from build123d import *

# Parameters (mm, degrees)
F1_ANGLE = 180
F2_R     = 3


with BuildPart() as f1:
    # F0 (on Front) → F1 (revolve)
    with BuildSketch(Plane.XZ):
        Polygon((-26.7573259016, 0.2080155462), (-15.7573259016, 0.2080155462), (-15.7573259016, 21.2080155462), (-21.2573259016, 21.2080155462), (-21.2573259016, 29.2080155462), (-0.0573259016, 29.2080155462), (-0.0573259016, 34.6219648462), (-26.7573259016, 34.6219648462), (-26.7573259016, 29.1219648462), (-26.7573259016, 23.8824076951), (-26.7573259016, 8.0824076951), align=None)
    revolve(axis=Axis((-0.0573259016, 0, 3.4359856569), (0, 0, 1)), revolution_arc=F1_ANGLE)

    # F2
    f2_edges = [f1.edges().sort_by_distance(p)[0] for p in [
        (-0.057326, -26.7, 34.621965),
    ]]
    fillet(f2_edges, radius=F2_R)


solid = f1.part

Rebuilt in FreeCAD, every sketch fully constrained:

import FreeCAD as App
import Part
import Sketcher
from FreeCAD import Vector


def edges_at(feature, points):
    """Names of the edges that pass closest to the given points."""
    edges = feature.Shape.Edges
    near = lambda p: min(range(len(edges)), key=lambda i: edges[i].distToShape(Part.Vertex(*p))[0])
    return sorted({f"Edge{near(p) + 1}" for p in points})


def add_polygon(sketch, points):
    """Adds a closed chain of lines whose ends are joined by coincident constraints."""
    first, n = sketch.GeometryCount, len(points)
    for a, b in zip(points, points[1:] + points[:1]):
        sketch.addGeometry(Part.LineSegment(App.Vector(*a, 0), App.Vector(*b, 0)), False)
    for i in range(n):
        sketch.addConstraint(Sketcher.Constraint("Coincident", first + i, 2, first + (i + 1) % n, 1))

doc = App.newDocument("Part")
body = doc.addObject("PartDesign::Body", "Body")

sketch1 = doc.addObject("Sketcher::SketchObject", "Sketch")
body.addObject(sketch1)
sketch1.AttachmentSupport = (doc.XZ_Plane, [""])
sketch1.MapMode = "FlatFace"
add_polygon(sketch1, [(-27, 0), (-16, 0), (-16, 21), (-21, 21), (-21, 29), (0, 29), (0, 35), (-27, 35)])
sketch1.addGeometry(Part.LineSegment(Vector(0, 0, 0), Vector(0, 35, 0)), True)
sketch1.addConstraint(Sketcher.Constraint("Horizontal", 0))
sketch1.addConstraint(Sketcher.Constraint("Vertical", 1))
sketch1.addConstraint(Sketcher.Constraint("Horizontal", 2))
sketch1.addConstraint(Sketcher.Constraint("Vertical", 3))
sketch1.addConstraint(Sketcher.Constraint("Horizontal", 4))
sketch1.addConstraint(Sketcher.Constraint("Vertical", 5))
sketch1.addConstraint(Sketcher.Constraint("Horizontal", 6))
sketch1.addConstraint(Sketcher.Constraint("Vertical", 7))
sketch1.addConstraint(Sketcher.Constraint("Vertical", 8))
sketch1.addConstraint(Sketcher.Constraint("Coincident", 8, 2, 5, 2))
sketch1.addConstraint(Sketcher.Constraint("Horizontal", 7, 2, 8, 1))
sketch1.addConstraint(Sketcher.Constraint("DistanceX", 0, 1, 0, 2, 11.0))
sketch1.addConstraint(Sketcher.Constraint("DistanceY", 1, 1, 1, 2, 21.0))
sketch1.addConstraint(Sketcher.Constraint("DistanceY", 3, 1, 3, 2, 8.0))
sketch1.addConstraint(Sketcher.Constraint("DistanceX", 2, 2, 2, 1, 5.5))
sketch1.addConstraint(Sketcher.Constraint("DistanceX", 4, 1, 4, 2, 21.2))
sketch1.addConstraint(Sketcher.Constraint("DistanceY", 5, 1, 5, 2, 5.413949))
sketch1.addConstraint(Sketcher.Constraint("DistanceX", 0, 2, -1, 1, 15.757326))
sketch1.addConstraint(Sketcher.Constraint("DistanceY", -1, 1, 0, 2, 0.208016))
revolution = doc.addObject("PartDesign::Revolution", "Revolution")
body.addObject(revolution)
revolution.Profile = sketch1
revolution.ReferenceAxis = (sketch1, ["Axis0"])
revolution.Angle = 180
doc.recompute()

fillet = doc.addObject("PartDesign::Fillet", "Fillet")
body.addObject(fillet)
fillet.Base = (revolution, edges_at(revolution, [(-0.057, -26.7, 34.622)]))
fillet.Radius = 3

doc.recompute()
